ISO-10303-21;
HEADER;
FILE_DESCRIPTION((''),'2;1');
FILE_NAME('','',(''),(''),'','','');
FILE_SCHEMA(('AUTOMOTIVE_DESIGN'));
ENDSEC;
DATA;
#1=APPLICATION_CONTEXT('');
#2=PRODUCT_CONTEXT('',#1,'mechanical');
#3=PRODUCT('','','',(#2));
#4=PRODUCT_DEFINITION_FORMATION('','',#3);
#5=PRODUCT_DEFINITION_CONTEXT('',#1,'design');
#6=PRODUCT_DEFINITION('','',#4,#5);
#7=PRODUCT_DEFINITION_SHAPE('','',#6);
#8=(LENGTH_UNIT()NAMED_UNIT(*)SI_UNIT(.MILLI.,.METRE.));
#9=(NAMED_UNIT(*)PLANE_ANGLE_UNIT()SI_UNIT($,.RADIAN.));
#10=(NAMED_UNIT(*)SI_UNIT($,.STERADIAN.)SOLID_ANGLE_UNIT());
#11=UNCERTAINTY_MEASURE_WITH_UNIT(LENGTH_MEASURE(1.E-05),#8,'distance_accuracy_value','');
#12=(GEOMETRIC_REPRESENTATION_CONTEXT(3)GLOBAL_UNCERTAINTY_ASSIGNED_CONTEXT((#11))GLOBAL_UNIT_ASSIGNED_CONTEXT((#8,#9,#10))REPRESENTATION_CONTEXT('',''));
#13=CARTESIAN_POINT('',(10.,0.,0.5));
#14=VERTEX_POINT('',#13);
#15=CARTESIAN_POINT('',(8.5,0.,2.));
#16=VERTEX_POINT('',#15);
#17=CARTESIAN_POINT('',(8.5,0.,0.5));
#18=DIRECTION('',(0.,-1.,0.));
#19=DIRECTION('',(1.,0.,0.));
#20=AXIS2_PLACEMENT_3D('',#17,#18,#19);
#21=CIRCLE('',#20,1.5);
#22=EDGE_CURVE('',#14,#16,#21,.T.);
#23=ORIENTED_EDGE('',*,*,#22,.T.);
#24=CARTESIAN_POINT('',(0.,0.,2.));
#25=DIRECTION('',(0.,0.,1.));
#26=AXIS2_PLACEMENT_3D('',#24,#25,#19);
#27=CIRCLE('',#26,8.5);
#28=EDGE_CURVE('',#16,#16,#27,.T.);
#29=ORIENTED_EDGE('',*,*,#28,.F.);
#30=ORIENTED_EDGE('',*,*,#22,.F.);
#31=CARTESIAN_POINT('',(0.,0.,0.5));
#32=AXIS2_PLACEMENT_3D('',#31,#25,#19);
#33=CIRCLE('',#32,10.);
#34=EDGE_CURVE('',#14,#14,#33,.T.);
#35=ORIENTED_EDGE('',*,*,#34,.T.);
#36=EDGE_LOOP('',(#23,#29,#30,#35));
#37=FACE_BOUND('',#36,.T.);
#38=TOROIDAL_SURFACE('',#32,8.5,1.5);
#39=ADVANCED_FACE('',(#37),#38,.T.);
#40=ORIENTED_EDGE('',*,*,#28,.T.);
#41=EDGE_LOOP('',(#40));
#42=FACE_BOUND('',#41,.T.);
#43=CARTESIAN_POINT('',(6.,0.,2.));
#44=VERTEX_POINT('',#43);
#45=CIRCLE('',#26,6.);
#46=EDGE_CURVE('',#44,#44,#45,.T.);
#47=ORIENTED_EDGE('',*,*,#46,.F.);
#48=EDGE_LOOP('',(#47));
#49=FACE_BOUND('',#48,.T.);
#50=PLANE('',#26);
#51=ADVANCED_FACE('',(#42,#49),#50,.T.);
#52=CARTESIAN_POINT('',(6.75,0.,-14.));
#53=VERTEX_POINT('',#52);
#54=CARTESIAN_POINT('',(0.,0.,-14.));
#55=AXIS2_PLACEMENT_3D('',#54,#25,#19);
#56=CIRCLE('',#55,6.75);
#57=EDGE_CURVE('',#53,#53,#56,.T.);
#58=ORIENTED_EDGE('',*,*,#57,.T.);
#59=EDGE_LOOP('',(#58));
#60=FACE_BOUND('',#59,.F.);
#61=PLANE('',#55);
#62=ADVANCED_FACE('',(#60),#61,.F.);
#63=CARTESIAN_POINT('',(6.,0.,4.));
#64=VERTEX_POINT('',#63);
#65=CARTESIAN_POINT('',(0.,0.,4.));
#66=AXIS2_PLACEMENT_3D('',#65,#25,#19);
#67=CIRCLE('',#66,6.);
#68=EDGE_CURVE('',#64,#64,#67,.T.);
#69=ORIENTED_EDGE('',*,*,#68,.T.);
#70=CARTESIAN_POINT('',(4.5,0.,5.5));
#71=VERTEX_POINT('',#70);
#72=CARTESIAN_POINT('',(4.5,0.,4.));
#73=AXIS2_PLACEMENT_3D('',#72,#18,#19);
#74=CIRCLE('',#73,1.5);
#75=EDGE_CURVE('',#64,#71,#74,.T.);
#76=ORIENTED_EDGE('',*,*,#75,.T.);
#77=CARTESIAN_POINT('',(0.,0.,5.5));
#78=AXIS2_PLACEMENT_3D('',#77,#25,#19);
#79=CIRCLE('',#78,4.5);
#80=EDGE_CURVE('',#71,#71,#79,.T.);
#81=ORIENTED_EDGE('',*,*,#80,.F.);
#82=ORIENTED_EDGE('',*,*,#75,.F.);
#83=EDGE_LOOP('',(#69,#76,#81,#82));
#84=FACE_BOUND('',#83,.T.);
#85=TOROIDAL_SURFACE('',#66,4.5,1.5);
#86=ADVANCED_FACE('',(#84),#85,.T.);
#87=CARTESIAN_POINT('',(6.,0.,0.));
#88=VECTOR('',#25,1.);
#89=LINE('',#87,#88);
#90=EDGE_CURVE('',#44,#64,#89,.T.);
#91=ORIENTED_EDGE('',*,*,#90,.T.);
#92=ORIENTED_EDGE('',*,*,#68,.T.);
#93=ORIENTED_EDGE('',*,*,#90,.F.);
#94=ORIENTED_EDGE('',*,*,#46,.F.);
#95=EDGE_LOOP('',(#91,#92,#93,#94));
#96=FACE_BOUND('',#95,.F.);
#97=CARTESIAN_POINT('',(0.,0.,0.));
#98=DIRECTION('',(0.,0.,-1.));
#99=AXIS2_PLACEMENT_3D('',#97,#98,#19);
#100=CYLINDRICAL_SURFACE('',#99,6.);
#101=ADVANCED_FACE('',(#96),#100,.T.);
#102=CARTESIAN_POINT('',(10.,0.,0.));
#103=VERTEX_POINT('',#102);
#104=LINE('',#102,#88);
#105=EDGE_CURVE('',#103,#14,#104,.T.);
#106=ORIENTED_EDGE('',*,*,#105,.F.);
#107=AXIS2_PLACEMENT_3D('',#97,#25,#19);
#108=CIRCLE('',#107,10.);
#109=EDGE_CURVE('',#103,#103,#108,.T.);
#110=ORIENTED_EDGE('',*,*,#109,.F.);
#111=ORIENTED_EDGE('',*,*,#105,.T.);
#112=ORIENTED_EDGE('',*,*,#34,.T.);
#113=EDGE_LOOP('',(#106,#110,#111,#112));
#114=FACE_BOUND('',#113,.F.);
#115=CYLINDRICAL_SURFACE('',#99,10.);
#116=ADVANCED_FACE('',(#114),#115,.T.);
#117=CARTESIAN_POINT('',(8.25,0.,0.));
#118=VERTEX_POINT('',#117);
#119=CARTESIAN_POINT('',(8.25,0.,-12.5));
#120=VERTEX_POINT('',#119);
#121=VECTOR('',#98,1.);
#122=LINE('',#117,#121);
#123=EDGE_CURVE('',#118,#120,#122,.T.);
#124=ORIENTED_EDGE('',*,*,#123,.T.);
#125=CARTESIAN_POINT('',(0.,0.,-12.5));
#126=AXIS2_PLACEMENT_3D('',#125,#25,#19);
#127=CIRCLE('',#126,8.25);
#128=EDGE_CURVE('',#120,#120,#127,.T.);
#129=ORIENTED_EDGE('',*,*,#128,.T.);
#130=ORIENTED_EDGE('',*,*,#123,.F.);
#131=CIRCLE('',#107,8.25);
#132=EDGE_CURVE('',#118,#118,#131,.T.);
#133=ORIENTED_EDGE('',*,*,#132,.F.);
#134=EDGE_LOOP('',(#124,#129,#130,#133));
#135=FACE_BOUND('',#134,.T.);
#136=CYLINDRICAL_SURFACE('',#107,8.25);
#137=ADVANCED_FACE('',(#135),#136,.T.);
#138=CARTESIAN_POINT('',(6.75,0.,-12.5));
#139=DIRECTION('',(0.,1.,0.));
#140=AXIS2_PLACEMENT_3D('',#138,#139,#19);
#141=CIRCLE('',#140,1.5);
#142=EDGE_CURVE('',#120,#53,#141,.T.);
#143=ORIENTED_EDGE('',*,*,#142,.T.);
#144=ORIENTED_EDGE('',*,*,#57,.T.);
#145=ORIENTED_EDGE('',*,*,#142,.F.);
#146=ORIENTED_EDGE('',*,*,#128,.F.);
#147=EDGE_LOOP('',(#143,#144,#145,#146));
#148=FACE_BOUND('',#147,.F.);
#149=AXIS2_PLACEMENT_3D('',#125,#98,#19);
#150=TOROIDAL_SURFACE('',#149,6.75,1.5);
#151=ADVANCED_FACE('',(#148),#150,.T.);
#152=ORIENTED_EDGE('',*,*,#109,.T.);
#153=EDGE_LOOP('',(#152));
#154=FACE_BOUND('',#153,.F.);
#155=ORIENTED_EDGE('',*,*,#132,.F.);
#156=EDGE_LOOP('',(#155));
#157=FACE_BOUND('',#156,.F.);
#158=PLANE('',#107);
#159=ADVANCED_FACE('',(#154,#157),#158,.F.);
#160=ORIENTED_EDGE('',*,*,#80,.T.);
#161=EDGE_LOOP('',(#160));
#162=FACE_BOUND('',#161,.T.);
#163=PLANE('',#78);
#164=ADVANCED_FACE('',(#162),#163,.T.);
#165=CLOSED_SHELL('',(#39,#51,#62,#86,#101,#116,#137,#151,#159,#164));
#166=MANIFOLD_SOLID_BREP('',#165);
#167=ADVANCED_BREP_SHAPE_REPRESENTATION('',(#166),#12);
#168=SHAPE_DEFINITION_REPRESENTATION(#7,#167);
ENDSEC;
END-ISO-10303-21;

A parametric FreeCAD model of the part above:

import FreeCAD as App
import Part
import Sketcher

V = App.Vector
Q = App.Units.Quantity


def edges_at(feature, points):
    """Names of the edges that pass closest to the given points."""
    edges = feature.Shape.Edges
    near = lambda p: min(range(len(edges)), key=lambda i: edges[i].distToShape(Part.Vertex(*p))[0])
    return sorted({f"Edge{near(p) + 1}" for p in points})

doc = App.newDocument("Part")
body = doc.addObject("PartDesign::Body", "Body")

sketch1 = body.newObject("Sketcher::SketchObject", "Sketch")
sketch1.AttachmentSupport = (doc.getObject("XY_Plane"), [""])
sketch1.MapMode = "FlatFace"
sketch1.addGeometry(Part.Circle(V(0, 0, 0), V(0, 0, 1), 6), False)
sketch1.addConstraint(Sketcher.Constraint("Coincident", 0, 3, -1, 1))
sketch1.addConstraint(Sketcher.Constraint("Diameter", 0, Q("12 mm")))
pad1 = body.newObject("PartDesign::Pad", "Pad")
pad1.Profile = sketch1
pad1.Length = 5.5

sketch2 = body.newObject("Sketcher::SketchObject", "Sketch001")
sketch2.AttachmentSupport = (doc.getObject("XY_Plane"), [""])
sketch2.MapMode = "FlatFace"
sketch2.addGeometry(Part.Circle(V(0, 0, 0), V(0, 0, 1), 10), False)
sketch2.addGeometry(Part.Circle(V(0, 0, 0), V(0, 0, 1), 6), False)
sketch2.addConstraint(Sketcher.Constraint("Coincident", 0, 3, -1, 1))
sketch2.addConstraint(Sketcher.Constraint("Coincident", 1, 3, -1, 1))
sketch2.addConstraint(Sketcher.Constraint("Diameter", 0, Q("20 mm")))
sketch2.addConstraint(Sketcher.Constraint("Diameter", 1, Q("12 mm")))
pad2 = body.newObject("PartDesign::Pad", "Pad001")
pad2.Profile = sketch2
pad2.Length = 2

sketch3 = body.newObject("Sketcher::SketchObject", "Sketch002")
sketch3.AttachmentSupport = (doc.getObject("XY_Plane"), [""])
sketch3.MapMode = "FlatFace"
sketch3.addGeometry(Part.Circle(V(0, 0, 0), V(0, 0, 1), 8), False)
sketch3.addConstraint(Sketcher.Constraint("Coincident", 0, 3, -1, 1))
sketch3.addConstraint(Sketcher.Constraint("Diameter", 0, Q("16.5 mm")))
pad3 = body.newObject("PartDesign::Pad", "Pad002")
pad3.Profile = sketch3
pad3.Length = 14
pad3.Reversed = True
doc.recompute()

fillet = body.newObject("PartDesign::Fillet", "Fillet")
fillet.Base = (pad3, edges_at(pad3, [(-10, 0, 2), (-6, 0, 5.5), (-8.25, 0, -14)]))
fillet.Radius = 1.5

doc.recompute()
